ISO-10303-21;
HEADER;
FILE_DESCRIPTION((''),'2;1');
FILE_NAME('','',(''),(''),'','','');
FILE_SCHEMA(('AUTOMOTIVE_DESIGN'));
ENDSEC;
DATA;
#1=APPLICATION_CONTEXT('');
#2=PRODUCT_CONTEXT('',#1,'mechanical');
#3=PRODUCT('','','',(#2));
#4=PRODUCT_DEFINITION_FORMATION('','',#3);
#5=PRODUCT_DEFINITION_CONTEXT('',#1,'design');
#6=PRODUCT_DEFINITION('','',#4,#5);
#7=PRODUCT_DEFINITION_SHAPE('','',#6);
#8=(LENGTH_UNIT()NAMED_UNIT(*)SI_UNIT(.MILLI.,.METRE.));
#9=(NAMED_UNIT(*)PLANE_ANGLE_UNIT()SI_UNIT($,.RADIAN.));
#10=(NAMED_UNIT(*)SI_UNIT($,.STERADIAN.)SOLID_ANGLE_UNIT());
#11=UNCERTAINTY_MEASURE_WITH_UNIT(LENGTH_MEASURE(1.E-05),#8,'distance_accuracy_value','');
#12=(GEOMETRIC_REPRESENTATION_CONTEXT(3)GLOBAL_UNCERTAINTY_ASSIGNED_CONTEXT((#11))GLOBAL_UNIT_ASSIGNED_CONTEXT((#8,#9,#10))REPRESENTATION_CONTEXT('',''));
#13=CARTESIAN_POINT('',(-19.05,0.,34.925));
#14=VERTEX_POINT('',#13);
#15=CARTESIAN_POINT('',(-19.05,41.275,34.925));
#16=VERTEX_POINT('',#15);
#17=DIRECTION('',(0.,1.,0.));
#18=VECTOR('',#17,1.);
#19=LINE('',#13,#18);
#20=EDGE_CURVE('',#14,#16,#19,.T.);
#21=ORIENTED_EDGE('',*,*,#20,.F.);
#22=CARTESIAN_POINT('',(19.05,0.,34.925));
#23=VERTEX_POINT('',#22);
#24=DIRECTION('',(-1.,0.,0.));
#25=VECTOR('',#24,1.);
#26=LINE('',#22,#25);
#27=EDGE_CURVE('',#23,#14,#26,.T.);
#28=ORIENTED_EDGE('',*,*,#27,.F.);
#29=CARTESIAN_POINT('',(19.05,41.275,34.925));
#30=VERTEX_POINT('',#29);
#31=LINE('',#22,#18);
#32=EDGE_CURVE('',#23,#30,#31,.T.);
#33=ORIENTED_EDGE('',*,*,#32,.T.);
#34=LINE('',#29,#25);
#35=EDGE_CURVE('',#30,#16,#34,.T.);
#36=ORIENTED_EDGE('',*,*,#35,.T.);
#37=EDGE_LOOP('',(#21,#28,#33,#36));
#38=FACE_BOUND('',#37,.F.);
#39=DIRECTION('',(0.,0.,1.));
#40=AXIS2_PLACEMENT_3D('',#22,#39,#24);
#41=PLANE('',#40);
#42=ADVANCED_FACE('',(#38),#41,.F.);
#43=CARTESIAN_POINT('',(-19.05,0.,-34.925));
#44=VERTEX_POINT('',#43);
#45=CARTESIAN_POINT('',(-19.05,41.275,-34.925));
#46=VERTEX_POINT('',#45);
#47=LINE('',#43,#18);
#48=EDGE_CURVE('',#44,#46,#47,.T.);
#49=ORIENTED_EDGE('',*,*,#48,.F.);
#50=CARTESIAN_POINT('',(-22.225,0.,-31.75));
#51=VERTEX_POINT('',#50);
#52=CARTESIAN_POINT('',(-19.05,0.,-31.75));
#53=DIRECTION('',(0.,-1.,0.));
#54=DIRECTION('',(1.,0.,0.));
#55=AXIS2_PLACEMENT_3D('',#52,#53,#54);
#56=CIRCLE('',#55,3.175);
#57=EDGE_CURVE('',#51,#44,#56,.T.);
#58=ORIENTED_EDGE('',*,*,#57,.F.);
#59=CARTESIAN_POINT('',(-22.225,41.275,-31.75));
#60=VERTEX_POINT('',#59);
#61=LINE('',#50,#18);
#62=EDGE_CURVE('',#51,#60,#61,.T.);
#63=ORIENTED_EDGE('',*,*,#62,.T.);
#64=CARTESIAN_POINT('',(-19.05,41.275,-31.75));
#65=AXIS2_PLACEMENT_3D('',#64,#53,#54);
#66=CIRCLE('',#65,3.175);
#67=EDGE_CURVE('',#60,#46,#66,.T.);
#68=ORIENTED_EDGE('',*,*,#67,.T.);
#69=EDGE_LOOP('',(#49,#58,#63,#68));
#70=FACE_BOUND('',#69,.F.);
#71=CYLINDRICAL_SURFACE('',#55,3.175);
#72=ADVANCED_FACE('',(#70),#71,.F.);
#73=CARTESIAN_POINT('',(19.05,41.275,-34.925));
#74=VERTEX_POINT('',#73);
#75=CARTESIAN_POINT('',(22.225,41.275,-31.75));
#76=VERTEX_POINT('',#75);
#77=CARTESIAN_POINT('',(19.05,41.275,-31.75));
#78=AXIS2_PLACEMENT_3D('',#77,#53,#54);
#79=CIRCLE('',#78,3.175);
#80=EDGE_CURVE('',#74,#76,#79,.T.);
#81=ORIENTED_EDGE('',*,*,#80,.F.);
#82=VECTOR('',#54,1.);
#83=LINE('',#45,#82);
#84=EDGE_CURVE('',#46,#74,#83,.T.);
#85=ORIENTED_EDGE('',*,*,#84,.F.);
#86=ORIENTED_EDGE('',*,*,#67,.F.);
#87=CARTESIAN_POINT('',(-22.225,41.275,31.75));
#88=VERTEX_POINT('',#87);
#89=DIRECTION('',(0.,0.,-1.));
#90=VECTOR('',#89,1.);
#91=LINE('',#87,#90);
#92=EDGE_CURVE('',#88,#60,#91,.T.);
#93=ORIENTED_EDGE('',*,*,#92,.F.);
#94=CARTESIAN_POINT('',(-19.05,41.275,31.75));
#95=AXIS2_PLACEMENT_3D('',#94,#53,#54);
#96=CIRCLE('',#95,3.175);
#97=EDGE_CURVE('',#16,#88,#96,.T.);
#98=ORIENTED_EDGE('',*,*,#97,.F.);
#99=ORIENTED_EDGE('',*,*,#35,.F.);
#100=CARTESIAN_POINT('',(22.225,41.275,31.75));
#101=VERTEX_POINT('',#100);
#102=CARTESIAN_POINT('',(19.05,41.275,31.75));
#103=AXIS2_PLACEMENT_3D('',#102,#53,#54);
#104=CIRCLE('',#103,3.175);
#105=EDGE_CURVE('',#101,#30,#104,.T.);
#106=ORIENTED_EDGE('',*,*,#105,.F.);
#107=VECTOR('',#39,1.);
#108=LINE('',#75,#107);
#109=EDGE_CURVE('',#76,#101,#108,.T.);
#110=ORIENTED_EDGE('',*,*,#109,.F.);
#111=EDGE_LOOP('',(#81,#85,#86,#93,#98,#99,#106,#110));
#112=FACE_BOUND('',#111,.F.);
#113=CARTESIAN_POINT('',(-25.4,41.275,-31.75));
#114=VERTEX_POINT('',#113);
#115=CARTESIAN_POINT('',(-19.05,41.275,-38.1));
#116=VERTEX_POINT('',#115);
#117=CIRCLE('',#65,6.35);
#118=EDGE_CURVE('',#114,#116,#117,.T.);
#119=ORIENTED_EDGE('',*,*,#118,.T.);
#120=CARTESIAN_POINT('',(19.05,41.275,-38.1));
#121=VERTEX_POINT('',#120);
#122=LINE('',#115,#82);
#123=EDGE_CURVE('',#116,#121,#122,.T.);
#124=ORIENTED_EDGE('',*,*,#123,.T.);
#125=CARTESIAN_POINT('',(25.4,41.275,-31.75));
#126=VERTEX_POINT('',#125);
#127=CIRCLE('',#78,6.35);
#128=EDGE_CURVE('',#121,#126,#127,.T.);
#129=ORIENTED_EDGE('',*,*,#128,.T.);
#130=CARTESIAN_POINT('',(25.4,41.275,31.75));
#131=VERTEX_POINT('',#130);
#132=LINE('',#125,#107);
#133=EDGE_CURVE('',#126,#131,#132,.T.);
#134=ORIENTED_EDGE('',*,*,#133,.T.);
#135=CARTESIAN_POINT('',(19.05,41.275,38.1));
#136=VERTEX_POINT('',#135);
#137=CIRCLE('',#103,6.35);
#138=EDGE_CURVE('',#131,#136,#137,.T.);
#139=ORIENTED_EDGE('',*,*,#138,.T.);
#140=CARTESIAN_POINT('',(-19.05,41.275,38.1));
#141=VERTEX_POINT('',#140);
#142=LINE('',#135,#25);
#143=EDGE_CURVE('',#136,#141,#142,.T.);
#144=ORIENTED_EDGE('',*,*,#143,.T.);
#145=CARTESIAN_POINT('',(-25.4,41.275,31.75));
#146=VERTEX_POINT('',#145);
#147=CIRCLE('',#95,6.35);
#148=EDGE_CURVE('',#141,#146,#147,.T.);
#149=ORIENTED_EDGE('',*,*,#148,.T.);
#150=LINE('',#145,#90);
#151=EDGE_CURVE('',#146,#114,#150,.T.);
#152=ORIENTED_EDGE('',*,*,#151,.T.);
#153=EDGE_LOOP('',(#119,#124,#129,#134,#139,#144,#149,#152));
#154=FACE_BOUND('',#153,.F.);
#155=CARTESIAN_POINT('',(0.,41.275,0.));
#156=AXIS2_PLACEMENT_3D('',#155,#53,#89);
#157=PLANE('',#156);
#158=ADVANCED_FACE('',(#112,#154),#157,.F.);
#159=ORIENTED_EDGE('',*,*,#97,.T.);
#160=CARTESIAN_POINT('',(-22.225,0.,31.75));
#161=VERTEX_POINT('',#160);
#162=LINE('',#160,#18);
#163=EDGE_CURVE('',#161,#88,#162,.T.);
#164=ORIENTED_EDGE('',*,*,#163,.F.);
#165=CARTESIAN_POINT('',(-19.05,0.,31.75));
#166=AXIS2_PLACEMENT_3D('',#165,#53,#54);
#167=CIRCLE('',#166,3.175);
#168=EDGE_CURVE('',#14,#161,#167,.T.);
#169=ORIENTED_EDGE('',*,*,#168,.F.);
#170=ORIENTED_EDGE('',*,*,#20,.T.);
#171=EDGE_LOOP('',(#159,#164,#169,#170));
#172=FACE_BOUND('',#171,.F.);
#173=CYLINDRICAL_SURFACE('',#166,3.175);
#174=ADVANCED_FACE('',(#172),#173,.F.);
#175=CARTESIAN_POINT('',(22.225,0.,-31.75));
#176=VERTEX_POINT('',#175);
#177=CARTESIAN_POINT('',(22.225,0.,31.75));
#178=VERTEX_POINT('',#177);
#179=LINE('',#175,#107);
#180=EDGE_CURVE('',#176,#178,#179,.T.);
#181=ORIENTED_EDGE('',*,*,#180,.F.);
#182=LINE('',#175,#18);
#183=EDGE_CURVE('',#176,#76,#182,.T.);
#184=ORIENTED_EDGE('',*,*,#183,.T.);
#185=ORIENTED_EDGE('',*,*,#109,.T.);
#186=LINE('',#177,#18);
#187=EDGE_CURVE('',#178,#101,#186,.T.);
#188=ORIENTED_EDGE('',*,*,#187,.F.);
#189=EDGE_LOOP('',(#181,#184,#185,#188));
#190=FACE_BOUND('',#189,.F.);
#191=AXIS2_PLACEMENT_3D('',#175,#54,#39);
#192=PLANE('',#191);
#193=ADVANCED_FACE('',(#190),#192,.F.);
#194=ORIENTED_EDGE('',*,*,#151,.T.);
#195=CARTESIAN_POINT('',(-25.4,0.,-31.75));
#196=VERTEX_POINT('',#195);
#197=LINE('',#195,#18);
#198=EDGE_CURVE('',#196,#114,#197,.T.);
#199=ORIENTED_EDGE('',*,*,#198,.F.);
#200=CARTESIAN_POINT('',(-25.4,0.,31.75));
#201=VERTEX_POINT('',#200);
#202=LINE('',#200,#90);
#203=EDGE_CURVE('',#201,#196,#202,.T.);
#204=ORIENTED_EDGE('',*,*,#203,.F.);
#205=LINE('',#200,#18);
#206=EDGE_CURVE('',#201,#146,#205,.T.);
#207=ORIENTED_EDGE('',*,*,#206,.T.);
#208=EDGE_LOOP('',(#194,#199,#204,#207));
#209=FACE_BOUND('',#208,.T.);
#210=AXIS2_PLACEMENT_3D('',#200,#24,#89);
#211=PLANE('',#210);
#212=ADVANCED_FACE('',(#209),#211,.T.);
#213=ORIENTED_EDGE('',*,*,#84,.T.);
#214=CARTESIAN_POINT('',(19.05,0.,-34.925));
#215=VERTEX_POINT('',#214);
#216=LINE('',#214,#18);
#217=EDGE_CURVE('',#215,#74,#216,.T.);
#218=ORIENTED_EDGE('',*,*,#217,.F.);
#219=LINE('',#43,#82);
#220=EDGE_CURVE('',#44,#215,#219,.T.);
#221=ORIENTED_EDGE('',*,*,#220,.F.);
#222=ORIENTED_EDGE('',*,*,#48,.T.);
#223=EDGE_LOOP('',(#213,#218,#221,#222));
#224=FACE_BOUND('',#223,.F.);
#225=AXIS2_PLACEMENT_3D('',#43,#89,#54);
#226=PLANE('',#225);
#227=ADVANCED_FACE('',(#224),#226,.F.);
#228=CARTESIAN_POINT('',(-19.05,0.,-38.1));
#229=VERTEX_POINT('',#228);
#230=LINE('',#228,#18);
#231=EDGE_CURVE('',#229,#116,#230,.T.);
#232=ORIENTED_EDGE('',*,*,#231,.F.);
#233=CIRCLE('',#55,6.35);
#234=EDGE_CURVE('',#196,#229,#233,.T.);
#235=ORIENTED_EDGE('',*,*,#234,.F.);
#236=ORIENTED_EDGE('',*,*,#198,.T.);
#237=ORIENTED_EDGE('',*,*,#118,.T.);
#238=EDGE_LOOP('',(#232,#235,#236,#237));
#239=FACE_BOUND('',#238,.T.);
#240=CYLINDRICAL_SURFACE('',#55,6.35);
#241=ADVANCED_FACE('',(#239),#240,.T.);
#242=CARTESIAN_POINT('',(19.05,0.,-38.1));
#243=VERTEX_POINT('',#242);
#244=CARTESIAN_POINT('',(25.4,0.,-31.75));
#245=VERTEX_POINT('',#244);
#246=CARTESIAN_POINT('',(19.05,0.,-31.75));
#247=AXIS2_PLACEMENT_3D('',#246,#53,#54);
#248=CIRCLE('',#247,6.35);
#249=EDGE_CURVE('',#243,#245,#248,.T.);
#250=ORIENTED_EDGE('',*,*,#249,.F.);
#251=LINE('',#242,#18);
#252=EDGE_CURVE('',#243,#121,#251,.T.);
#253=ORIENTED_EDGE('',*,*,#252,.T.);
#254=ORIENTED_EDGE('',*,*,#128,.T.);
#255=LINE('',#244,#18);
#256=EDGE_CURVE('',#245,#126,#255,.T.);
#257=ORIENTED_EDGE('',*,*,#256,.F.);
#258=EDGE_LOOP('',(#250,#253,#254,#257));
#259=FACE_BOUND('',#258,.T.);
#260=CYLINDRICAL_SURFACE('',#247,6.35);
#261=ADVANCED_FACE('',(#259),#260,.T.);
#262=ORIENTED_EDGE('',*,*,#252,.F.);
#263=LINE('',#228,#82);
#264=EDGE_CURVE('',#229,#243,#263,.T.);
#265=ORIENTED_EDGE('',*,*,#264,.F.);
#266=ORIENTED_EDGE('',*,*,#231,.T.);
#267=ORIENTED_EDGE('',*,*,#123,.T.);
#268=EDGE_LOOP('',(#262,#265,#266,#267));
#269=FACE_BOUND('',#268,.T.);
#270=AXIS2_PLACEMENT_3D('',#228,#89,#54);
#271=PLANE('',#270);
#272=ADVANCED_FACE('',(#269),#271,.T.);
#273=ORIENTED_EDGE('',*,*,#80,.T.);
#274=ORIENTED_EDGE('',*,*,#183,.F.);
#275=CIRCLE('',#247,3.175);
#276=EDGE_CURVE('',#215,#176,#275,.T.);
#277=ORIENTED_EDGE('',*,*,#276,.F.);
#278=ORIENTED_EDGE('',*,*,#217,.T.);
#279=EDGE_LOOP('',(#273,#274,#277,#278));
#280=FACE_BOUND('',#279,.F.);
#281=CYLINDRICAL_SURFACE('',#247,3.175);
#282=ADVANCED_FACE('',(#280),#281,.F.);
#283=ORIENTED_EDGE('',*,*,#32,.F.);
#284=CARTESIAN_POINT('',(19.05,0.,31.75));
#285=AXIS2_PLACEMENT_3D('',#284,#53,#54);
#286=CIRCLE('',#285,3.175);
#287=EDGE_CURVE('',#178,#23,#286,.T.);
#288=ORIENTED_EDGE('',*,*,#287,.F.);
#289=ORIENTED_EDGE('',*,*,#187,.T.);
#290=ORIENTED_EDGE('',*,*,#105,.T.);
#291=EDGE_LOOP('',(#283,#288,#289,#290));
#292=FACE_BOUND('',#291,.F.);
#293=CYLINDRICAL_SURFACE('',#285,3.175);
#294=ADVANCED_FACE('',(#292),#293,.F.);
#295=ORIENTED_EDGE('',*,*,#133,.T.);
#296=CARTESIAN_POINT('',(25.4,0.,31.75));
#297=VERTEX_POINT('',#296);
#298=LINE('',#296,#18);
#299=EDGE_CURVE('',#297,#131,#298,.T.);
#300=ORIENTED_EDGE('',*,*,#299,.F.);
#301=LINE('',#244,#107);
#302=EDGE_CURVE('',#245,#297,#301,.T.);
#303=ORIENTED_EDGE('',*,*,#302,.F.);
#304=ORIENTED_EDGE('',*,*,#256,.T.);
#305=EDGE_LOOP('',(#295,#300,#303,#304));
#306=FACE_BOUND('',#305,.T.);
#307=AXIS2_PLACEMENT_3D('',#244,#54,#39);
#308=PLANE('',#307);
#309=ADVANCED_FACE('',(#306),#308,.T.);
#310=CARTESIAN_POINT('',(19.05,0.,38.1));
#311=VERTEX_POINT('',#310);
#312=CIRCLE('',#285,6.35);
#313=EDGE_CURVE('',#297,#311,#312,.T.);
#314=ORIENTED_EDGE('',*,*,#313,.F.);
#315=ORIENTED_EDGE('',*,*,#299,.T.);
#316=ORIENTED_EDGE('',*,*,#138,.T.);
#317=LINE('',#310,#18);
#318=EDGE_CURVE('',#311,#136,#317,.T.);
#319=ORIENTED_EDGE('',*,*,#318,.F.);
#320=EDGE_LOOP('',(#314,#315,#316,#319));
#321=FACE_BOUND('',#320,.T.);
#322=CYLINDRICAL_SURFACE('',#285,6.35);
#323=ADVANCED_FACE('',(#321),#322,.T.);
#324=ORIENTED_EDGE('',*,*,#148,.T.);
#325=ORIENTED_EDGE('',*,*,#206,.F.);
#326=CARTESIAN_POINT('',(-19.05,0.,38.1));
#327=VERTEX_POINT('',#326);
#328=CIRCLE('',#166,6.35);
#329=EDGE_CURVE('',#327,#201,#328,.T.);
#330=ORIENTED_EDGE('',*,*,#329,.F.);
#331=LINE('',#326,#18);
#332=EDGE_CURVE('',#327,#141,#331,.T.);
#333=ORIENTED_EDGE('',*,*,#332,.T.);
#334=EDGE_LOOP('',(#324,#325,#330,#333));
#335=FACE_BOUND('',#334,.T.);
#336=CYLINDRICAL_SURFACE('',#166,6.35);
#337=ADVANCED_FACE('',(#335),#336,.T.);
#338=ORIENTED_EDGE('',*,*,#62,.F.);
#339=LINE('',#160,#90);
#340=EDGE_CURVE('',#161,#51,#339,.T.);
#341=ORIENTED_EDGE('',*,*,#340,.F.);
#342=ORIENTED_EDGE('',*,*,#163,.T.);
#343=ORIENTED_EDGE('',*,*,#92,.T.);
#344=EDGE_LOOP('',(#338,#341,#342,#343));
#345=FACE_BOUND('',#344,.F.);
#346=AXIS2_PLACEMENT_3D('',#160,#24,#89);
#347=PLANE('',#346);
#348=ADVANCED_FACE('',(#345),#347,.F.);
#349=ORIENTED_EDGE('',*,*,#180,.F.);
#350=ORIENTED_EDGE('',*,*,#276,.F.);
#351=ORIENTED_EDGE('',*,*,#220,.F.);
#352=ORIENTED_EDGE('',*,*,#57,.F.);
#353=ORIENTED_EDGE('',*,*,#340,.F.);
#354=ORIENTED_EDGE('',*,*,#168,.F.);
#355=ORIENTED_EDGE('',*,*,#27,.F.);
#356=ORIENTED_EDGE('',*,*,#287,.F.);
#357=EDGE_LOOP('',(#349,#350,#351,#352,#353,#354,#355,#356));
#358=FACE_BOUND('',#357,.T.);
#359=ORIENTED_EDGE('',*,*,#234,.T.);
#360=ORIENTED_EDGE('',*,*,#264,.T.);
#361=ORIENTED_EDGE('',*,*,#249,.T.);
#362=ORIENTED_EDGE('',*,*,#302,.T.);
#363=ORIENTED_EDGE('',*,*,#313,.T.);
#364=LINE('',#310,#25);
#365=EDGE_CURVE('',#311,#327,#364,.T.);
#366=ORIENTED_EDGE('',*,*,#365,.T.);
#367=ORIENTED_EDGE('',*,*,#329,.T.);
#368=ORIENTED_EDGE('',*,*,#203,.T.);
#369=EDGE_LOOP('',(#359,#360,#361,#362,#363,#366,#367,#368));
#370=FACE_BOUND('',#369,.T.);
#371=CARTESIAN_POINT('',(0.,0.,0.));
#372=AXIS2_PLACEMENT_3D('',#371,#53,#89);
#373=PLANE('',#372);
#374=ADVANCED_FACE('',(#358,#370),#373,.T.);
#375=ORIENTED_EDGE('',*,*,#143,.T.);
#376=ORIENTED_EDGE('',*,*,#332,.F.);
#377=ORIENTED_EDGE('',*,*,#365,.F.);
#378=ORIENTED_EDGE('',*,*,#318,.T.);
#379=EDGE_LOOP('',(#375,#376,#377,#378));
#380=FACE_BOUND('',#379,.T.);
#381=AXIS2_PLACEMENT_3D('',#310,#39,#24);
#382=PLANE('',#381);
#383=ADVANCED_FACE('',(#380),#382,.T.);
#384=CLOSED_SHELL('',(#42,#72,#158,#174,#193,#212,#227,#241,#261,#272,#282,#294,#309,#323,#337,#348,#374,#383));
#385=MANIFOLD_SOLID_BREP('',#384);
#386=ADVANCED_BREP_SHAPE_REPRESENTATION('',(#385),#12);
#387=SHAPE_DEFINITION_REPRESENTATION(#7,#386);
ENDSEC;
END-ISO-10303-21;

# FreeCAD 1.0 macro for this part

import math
import FreeCAD as App
import Part
import Sketcher
Q = App.Units.Quantity

doc = App.newDocument("Part")
params = doc.addObject("Spreadsheet::Sheet", "Params")
for row, (alias, value) in enumerate([
    ("sketch1_radius", "0.25 in"),
    ("sketch1_width", "1.5 in"),
    ("sketch1_height", "2.5 in"),
    ("sketch1_radius2", "0.125 in"),
    ("pad1_length", "1.625 in"),
], start=1):
    params.set(f"A{row}", alias)
    params.set(f"B{row}", "=" + value)
    params.setAlias(f"B{row}", alias)

body = doc.addObject("PartDesign::Body", "Body")

sketch1 = body.newObject("Sketcher::SketchObject", "Sketch")
sketch1.AttachmentSupport = (doc.getObject("XZ_Plane"), [""])
sketch1.MapMode = "FlatFace"
sketch1.addGeometry([
    Part.LineSegment(App.Vector(-25.4, 31.75, 0), App.Vector(-25.4, -31.75, 0)),
    Part.ArcOfCircle(Part.Circle(App.Vector(-19.05, -31.75, 0), App.Vector(0, 0, 1), 6.35), math.radians(180), math.radians(270)),
    Part.LineSegment(App.Vector(-19.05, -38.1, 0), App.Vector(19.05, -38.1, 0)),
    Part.ArcOfCircle(Part.Circle(App.Vector(19.05, -31.75, 0), App.Vector(0, 0, 1), 6.35), math.radians(-90), math.radians(0)),
    Part.LineSegment(App.Vector(25.4, -31.75, 0), App.Vector(25.4, 31.75, 0)),
    Part.ArcOfCircle(Part.Circle(App.Vector(19.05, 31.75, 0), App.Vector(0, 0, 1), 6.35), math.radians(0), math.radians(90)),
    Part.LineSegment(App.Vector(19.05, 38.1, 0), App.Vector(-19.05, 38.1, 0)),
    Part.ArcOfCircle(Part.Circle(App.Vector(-19.05, 31.75, 0), App.Vector(0, 0, 1), 6.35), math.radians(90), math.radians(180)),
    Part.LineSegment(App.Vector(-22.225, -31.75, 0), App.Vector(-22.225, 31.75, 0)),
    Part.ArcOfCircle(Part.Circle(App.Vector(-19.05, 31.75, 0), App.Vector(0, 0, 1), 3.175), math.radians(90), math.radians(180)),
    Part.LineSegment(App.Vector(-19.05, 34.925, 0), App.Vector(19.05, 34.925, 0)),
    Part.ArcOfCircle(Part.Circle(App.Vector(19.05, 31.75, 0), App.Vector(0, 0, 1), 3.175), math.radians(0), math.radians(90)),
    Part.LineSegment(App.Vector(22.225, 31.75, 0), App.Vector(22.225, -31.75, 0)),
    Part.ArcOfCircle(Part.Circle(App.Vector(19.05, -31.75, 0), App.Vector(0, 0, 1), 3.175), math.radians(-90), math.radians(0)),
    Part.LineSegment(App.Vector(19.05, -34.925, 0), App.Vector(-19.05, -34.925, 0)),
    Part.ArcOfCircle(Part.Circle(App.Vector(-19.05, -31.75, 0), App.Vector(0, 0, 1), 3.175), math.radians(180), math.radians(270)),
], False)
sketch1.addConstraint([
    Sketcher.Constraint("Tangent", 0, 2, 1, 1),
    Sketcher.Constraint("Tangent", 1, 2, 2, 1),
    Sketcher.Constraint("Tangent", 2, 2, 3, 1),
    Sketcher.Constraint("Tangent", 3, 2, 4, 1),
    Sketcher.Constraint("Tangent", 4, 2, 5, 1),
    Sketcher.Constraint("Tangent", 5, 2, 6, 1),
    Sketcher.Constraint("Tangent", 6, 2, 7, 1),
    Sketcher.Constraint("Tangent", 7, 2, 0, 1),
    Sketcher.Constraint("Tangent", 8, 2, 9, 2),
    Sketcher.Constraint("Tangent", 9, 1, 10, 1),
    Sketcher.Constraint("Tangent", 10, 2, 11, 2),
    Sketcher.Constraint("Tangent", 11, 1, 12, 1),
    Sketcher.Constraint("Tangent", 12, 2, 13, 2),
    Sketcher.Constraint("Tangent", 13, 1, 14, 1),
    Sketcher.Constraint("Tangent", 14, 2, 15, 2),
    Sketcher.Constraint("Tangent", 15, 1, 8, 1),
    Sketcher.Constraint("Vertical", 0),
    Sketcher.Constraint("Horizontal", 2),
    Sketcher.Constraint("Vertical", 4),
    Sketcher.Constraint("Horizontal", 6),
    Sketcher.Constraint("Vertical", 8),
    Sketcher.Constraint("Horizontal", 10),
    Sketcher.Constraint("Vertical", 12),
    Sketcher.Constraint("Horizontal", 14),
    Sketcher.Constraint("Coincident", 9, 3, 7, 3),
    Sketcher.Constraint("Coincident", 11, 3, 5, 3),
    Sketcher.Constraint("Coincident", 13, 3, 3, 3),
    Sketcher.Constraint("Equal", 1, 3),
    Sketcher.Constraint("Equal", 3, 5),
    Sketcher.Constraint("Equal", 5, 7),
    Sketcher.Constraint("Equal", 13, 15),
    Sketcher.Constraint("Symmetric", 1, 3, 5, 3, -1, 1),
    Sketcher.Constraint("Radius", 1, Q("0.25 in")),
    Sketcher.Constraint("DistanceX", 2, 1, 2, 2, Q("1.5 in")),
    Sketcher.Constraint("DistanceY", 0, 2, 0, 1, Q("2.5 in")),
    Sketcher.Constraint("Radius", 9, Q("0.125 in")),
])
sketch1.setExpression("Constraints[32]", "Params.sketch1_radius")
sketch1.setExpression("Constraints[33]", "Params.sketch1_width")
sketch1.setExpression("Constraints[34]", "Params.sketch1_height")
sketch1.setExpression("Constraints[35]", "Params.sketch1_radius2")
pad1 = body.newObject("PartDesign::Pad", "Pad")
pad1.Profile = sketch1
pad1.setExpression("Length", "Params.pad1_length")
pad1.Reversed = True

doc.recompute()
